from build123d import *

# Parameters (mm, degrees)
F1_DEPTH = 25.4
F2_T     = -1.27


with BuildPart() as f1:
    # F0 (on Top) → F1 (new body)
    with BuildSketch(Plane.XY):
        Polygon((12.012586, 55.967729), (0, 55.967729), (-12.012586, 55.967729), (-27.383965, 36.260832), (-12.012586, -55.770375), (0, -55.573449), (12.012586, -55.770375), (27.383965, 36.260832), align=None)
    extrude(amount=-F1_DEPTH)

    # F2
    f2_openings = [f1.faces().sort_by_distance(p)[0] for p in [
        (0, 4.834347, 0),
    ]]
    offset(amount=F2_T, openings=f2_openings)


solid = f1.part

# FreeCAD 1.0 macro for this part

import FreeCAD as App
import Part
import Sketcher

V = App.Vector
Q = App.Units.Quantity


def faces_at(feature, points):
    """Names of the faces that lie closest to the given points."""
    faces = feature.Shape.Faces
    near = lambda p: min(range(len(faces)), key=lambda i: faces[i].distToShape(Part.Vertex(*p))[0])
    return sorted({f"Face{near(p) + 1}" for p in points})


def add_polygon(sketch, points):
    """Adds a closed chain of lines whose ends are joined by coincident constraints."""
    first, n = sketch.GeometryCount, len(points)
    for a, b in zip(points, points[1:] + points[:1]):
        sketch.addGeometry(Part.LineSegment(App.Vector(*a, 0), App.Vector(*b, 0)), False)
    for i in range(n):
        sketch.addConstraint(Sketcher.Constraint("Coincident", first + i, 2, first + (i + 1) % n, 1))

doc = App.newDocument("Part")
params = doc.addObject("Spreadsheet::Sheet", "Params")
for row, (alias, value) in enumerate([
    ("sketch1_length", "0.473 in"),
    ("pad1_length", "1 in"),
    ("thickness_wall", "0.05 in"),
], start=1):
    params.set(f"A{row}", alias)
    params.set(f"B{row}", "=" + value)
    params.setAlias(f"B{row}", alias)

body = doc.addObject("PartDesign::Body", "Body")

# Sketch on XY plane
sketch1 = doc.addObject("Sketcher::SketchObject", "Sketch")
body.addObject(sketch1)
sketch1.AttachmentSupport = (doc.XY_Plane, [""])
sketch1.MapMode = "FlatFace"
add_polygon(sketch1, [(12.012586, 55.967729), (-12.012586, 55.967729), (-27.383965, 36.260832), (-12.012586, -55.770375), (0, -55.573449), (12.012586, -55.770375), (27.383965, 36.260832)])  # lines 0-6
sketch1.addConstraint(Sketcher.Constraint("Horizontal", 0))
sketch1.addConstraint(Sketcher.Constraint("Symmetric", 2, 2, 4, 2, -2))
sketch1.addConstraint(Sketcher.Constraint("Symmetric", 1, 2, 5, 2, -2))
sketch1.addConstraint(Sketcher.Constraint("PointOnObject", 3, 2, -2))
sketch1.addConstraint(Sketcher.Constraint("Vertical", 0, 2, 2, 2))
sketch1.addConstraint(Sketcher.Constraint("Vertical", 4, 2, 6, 2))
sketch1.addConstraint(Sketcher.Constraint("Distance", 3, Q("0.473 in")))
sketch1.addConstraint(Sketcher.Constraint("Distance", 1, Q("24.992821 mm")))
sketch1.addConstraint(Sketcher.Constraint("Distance", 2, Q("93.306068 mm")))
sketch1.addConstraint(Sketcher.Constraint("DistanceX", 0, 2, 0, 1, Q("24.025172 mm")))
sketch1.addConstraint(Sketcher.Constraint("DistanceY", -1, 1, 0, 2, Q("55.967729 mm")))
sketch1.addConstraint(Sketcher.Constraint("DistanceY", 3, 2, -1, 1, Q("55.573449 mm")))
sketch1.setExpression("Constraints[13]", "Params.sketch1_length")
pad1 = doc.addObject("PartDesign::Pad", "Pad")
body.addObject(pad1)
pad1.Profile = sketch1
pad1.setExpression("Length", "Params.pad1_length")
pad1.Reversed = True
doc.recompute()

thickness = doc.addObject("PartDesign::Thickness", "Thickness")
body.addObject(thickness)
thickness.Base = (pad1, faces_at(pad1, [(0, 0.099, 0)]))
thickness.setExpression("Value", "Params.thickness_wall")
thickness.Reversed = True
thickness.Join = "Arc"

doc.recompute()
